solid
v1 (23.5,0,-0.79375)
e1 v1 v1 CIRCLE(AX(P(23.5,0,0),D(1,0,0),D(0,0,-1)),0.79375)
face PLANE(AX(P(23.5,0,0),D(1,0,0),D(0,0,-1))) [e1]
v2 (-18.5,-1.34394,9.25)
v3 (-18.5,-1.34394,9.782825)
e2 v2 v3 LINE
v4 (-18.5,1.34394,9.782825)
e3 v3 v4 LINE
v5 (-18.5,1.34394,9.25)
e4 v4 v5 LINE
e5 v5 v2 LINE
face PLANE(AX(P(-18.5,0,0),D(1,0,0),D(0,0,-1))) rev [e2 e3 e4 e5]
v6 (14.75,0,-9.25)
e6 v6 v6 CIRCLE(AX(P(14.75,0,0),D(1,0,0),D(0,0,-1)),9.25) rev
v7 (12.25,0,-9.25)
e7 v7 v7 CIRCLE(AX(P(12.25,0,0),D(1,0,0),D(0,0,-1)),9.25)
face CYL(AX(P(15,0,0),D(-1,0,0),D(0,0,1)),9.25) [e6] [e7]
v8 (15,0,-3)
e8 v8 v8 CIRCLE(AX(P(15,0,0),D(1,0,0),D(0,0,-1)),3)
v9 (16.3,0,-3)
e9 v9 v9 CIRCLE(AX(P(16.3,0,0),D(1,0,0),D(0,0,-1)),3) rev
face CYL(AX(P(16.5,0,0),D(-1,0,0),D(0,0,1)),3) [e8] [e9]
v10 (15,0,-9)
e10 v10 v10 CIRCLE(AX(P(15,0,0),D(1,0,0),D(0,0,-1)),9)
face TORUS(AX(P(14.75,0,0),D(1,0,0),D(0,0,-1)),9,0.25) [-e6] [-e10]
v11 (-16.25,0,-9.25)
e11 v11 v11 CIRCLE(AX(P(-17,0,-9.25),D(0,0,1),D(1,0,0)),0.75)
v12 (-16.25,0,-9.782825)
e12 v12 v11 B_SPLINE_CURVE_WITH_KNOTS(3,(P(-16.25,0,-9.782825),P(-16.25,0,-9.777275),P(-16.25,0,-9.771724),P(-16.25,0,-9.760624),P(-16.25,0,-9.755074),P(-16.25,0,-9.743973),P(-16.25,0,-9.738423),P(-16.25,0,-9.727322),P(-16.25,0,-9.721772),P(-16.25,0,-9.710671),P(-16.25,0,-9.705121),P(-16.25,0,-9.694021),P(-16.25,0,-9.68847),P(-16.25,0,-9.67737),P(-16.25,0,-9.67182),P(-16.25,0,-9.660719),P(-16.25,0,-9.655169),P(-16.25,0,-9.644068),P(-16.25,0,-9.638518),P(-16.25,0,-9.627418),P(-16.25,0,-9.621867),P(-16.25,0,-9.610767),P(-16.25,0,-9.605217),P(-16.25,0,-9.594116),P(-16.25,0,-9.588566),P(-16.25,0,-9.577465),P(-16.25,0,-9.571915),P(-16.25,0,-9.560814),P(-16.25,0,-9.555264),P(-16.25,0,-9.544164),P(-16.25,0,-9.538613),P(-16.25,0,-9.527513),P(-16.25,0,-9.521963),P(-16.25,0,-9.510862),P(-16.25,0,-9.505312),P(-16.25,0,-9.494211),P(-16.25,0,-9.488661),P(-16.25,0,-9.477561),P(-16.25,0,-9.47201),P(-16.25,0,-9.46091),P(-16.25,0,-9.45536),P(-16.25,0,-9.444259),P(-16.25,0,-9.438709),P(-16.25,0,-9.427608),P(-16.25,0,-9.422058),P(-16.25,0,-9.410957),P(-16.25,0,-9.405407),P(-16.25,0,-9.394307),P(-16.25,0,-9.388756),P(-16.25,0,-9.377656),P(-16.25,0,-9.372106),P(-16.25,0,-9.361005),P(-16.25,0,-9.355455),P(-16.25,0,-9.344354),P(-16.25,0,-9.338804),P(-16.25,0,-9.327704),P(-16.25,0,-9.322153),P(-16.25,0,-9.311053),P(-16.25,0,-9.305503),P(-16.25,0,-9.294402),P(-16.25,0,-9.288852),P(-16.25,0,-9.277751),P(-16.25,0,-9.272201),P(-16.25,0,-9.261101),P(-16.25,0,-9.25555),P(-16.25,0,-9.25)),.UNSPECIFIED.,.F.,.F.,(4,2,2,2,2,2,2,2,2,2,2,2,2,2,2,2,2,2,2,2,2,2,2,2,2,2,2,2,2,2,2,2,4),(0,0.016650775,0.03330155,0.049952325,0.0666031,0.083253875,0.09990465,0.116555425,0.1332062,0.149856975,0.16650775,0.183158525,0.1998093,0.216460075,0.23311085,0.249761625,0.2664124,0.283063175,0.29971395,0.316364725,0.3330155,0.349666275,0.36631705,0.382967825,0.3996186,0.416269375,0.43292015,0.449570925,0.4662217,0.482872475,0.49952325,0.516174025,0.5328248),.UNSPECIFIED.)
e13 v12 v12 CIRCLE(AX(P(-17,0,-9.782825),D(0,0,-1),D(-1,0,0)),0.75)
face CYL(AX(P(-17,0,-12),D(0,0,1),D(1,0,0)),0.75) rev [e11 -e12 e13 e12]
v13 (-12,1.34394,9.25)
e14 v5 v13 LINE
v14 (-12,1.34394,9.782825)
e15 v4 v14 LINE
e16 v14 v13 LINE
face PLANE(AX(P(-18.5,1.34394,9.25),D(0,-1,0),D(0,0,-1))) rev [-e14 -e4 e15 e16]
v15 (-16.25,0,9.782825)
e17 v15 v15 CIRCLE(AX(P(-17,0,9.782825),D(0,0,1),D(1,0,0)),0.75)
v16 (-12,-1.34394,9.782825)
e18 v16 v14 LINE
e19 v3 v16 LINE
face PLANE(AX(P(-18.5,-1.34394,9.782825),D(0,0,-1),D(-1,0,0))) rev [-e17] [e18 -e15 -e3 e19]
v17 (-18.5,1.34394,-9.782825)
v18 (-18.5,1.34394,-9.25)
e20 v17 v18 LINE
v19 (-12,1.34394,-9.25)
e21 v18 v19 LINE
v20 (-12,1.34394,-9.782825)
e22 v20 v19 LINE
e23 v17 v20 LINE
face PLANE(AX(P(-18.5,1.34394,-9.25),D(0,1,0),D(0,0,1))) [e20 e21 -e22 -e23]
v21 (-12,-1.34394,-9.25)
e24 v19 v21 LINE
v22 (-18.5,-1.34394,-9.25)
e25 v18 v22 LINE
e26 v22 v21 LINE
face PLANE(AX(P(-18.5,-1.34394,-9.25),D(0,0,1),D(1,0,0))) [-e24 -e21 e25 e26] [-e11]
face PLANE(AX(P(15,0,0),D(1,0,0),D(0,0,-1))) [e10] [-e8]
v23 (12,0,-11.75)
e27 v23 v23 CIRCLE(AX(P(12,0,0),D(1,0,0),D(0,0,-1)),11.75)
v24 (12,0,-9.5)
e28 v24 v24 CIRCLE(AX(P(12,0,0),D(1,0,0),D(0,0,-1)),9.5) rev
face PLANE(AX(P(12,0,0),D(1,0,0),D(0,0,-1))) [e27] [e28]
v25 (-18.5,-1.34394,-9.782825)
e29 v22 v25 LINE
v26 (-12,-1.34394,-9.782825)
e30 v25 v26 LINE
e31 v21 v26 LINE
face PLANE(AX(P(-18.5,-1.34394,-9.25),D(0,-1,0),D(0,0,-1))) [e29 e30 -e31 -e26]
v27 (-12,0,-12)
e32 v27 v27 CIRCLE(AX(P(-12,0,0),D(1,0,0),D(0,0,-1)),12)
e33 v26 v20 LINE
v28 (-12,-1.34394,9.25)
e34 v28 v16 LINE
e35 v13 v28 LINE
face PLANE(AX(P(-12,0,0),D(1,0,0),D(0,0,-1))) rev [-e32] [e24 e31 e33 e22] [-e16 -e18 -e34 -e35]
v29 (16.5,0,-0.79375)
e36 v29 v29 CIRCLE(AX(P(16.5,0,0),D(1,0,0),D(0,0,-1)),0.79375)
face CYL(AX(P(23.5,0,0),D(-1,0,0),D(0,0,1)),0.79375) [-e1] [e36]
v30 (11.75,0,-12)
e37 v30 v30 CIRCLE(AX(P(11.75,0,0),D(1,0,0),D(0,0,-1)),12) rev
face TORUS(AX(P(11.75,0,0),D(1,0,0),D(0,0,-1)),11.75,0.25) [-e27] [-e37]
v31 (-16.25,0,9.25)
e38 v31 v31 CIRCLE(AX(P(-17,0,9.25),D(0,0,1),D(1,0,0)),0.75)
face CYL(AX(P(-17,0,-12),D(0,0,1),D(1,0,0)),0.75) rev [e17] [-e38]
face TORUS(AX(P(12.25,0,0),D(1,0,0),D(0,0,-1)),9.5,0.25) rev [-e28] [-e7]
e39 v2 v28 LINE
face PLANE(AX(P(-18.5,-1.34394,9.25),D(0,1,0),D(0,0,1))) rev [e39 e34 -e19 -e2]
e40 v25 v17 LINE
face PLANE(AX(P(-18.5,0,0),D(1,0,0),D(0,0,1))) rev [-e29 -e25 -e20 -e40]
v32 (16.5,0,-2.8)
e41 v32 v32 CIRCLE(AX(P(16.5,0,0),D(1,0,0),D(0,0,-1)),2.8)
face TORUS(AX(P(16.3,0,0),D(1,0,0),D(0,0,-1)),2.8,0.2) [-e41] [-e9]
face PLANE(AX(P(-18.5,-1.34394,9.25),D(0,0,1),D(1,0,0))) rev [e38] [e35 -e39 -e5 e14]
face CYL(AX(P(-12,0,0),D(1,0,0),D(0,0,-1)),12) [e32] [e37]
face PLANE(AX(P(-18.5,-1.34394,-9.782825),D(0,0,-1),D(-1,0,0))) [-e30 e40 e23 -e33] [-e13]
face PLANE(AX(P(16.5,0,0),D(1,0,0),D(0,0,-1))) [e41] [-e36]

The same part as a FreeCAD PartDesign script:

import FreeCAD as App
import Part
import Sketcher
Q = App.Units.Quantity


def edges_at(feature, points):
    """Names of the edges that pass closest to the given points."""
    edges = feature.Shape.Edges
    near = lambda p: min(range(len(edges)), key=lambda i: edges[i].distToShape(Part.Vertex(*p))[0])
    return sorted({f"Edge{near(p) + 1}" for p in points})

doc = App.newDocument("Part")
body = doc.addObject("PartDesign::Body", "Body")

sketch1 = body.newObject("Sketcher::SketchObject", "Sketch")
sketch1.AttachmentSupport = (doc.getObject("YZ_Plane"), [""])
sketch1.MapMode = "FlatFace"
sketch1.addGeometry(Part.Circle(App.Vector(0, 0, 0), App.Vector(0, 0, 1), 12), False)
sketch1.addConstraint([
    Sketcher.Constraint("Coincident", 0, 3, -1, 1),
    Sketcher.Constraint("Diameter", 0, Q("24 mm")),
])
pad1 = body.newObject("PartDesign::Pad", "Pad")
pad1.Profile = sketch1
pad1.Type = "TwoLengths"
pad1.Length = 12
pad1.Length2 = 12

sketch2 = body.newObject("Sketcher::SketchObject", "Sketch001")
sketch2.AttachmentSupport = (doc.getObject("YZ_Plane"), [""])
sketch2.MapMode = "FlatFace"
sketch2.AttachmentOffset = App.Placement(App.Vector(0, 0, 12), App.Rotation())
sketch2.addGeometry(Part.Circle(App.Vector(0, 0, 0), App.Vector(0, 0, 1), 9), False)
sketch2.addConstraint([
    Sketcher.Constraint("Coincident", 0, 3, -1, 1),
    Sketcher.Constraint("Diameter", 0, Q("18.5 mm")),
])
pad2 = body.newObject("PartDesign::Pad", "Pad001")
pad2.Profile = sketch2
pad2.Length = 3

sketch3 = body.newObject("Sketcher::SketchObject", "Sketch002")
sketch3.AttachmentSupport = (doc.getObject("YZ_Plane"), [""])
sketch3.MapMode = "FlatFace"
sketch3.AttachmentOffset = App.Placement(App.Vector(0, 0, 15), App.Rotation())
sketch3.addGeometry(Part.Circle(App.Vector(0, 0, 0), App.Vector(0, 0, 1), 3), False)
sketch3.addConstraint([
    Sketcher.Constraint("Coincident", 0, 3, -1, 1),
    Sketcher.Constraint("Diameter", 0, Q("6 mm")),
])
pad3 = body.newObject("PartDesign::Pad", "Pad002")
pad3.Profile = sketch3
pad3.Length = 1.5

sketch4 = body.newObject("Sketcher::SketchObject", "Sketch003")
sketch4.AttachmentSupport = (doc.getObject("YZ_Plane"), [""])
sketch4.MapMode = "FlatFace"
sketch4.AttachmentOffset = App.Placement(App.Vector(0, 0, 16.5), App.Rotation())
sketch4.addGeometry(Part.Circle(App.Vector(0, 0, 0), App.Vector(0, 0, 1), 0.8), False)
sketch4.addConstraint([
    Sketcher.Constraint("Coincident", 0, 3, -1, 1),
    Sketcher.Constraint("Diameter", 0, Q("1.5875 mm")),
])
pad4 = body.newObject("PartDesign::Pad", "Pad003")
pad4.Profile = sketch4
pad4.Length = 7
doc.recompute()

fillet = body.newObject("PartDesign::Fillet", "Fillet")
fillet.Base = (pad4, edges_at(pad4, [(12, 0, 12), (12, 0, 9.25), (15, 0, 9.25)]))
fillet.Radius = 0.25
doc.recompute()

fillet2 = body.newObject("PartDesign::Fillet", "Fillet001")
fillet2.Base = (fillet, edges_at(fillet, [(16.5, 0, 3)]))
fillet2.Radius = 0.2

sketch5 = body.newObject("Sketcher::SketchObject", "Sketch004")
sketch5.AttachmentSupport = (doc.getObject("YZ_Plane"), [""])
sketch5.MapMode = "FlatFace"
sketch5.AttachmentOffset = App.Placement(App.Vector(0, 0, -12), App.Rotation())
sketch5.addGeometry([
    Part.LineSegment(App.Vector(1.3, 9.2, 0), App.Vector(-1.3, 9.2, 0)),
    Part.LineSegment(App.Vector(-1.3, 9.2, 0), App.Vector(-1.3, 9.8, 0)),
    Part.LineSegment(App.Vector(-1.3, 9.8, 0), App.Vector(1.3, 9.8, 0)),
    Part.LineSegment(App.Vector(1.3, 9.8, 0), App.Vector(1.3, 9.2, 0)),
], False)
sketch5.addConstraint([
    Sketcher.Constraint("Coincident", 0, 2, 1, 1),
    Sketcher.Constraint("Coincident", 1, 2, 2, 1),
    Sketcher.Constraint("Coincident", 2, 2, 3, 1),
    Sketcher.Constraint("Coincident", 3, 2, 0, 1),
    Sketcher.Constraint("Horizontal", 0),
    Sketcher.Constraint("Vertical", 1),
    Sketcher.Constraint("Horizontal", 2),
    Sketcher.Constraint("Vertical", 3),
    Sketcher.Constraint("DistanceY", -1, 1, 0, 2, Q("9.25 mm")),
    Sketcher.Constraint("DistanceX", 0, 2, 0, 1, Q("2.68788 mm")),
    Sketcher.Constraint("DistanceY", 1, 1, 1, 2, Q("0.532825 mm")),
    Sketcher.Constraint("DistanceX", 0, 2, -1, 1, Q("1.34394 mm")),
])
pad5 = body.newObject("PartDesign::Pad", "Pad004")
pad5.Profile = sketch5
pad5.Length = 6.5
pad5.Reversed = True
doc.recompute()

mirrored = body.newObject("PartDesign::Mirrored", "Mirrored")
mirrored.Originals = [pad5]
mirrored.MirrorPlane = (doc.getObject("XY_Plane"), [""])
body.Tip = mirrored

sketch6 = body.newObject("Sketcher::SketchObject", "Sketch005")
sketch6.AttachmentSupport = (doc.getObject("XY_Plane"), [""])
sketch6.MapMode = "FlatFace"
sketch6.AttachmentOffset = App.Placement(App.Vector(0, 0, 9.782825), App.Rotation())
sketch6.addGeometry(Part.Circle(App.Vector(-17, 0, 0), App.Vector(0, 0, 1), 0.8), False)
sketch6.addConstraint([
    Sketcher.Constraint("PointOnObject", 0, 3, -1),
    Sketcher.Constraint("Diameter", 0, Q("1.5 mm")),
    Sketcher.Constraint("DistanceX", 0, 3, -1, 1, Q("17 mm")),
])
pocket1 = body.newObject("PartDesign::Pocket", "Pocket")
pocket1.Profile = sketch6
pocket1.Type = "ThroughAll"

doc.recompute()
